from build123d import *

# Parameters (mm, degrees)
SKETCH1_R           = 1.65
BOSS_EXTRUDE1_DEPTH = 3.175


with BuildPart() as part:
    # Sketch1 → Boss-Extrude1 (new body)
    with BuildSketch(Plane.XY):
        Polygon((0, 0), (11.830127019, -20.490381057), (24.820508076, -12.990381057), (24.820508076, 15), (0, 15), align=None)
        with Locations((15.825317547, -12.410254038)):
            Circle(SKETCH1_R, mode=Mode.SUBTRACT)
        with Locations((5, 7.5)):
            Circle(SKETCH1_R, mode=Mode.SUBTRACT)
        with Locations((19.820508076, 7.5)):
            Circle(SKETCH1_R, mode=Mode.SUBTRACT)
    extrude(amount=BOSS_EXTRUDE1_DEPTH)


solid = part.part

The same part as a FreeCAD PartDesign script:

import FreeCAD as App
import Part
import Sketcher
from FreeCAD import Vector
Q = App.Units.Quantity


def add_polygon(sketch, points):
    """Adds a closed chain of lines whose ends are joined by coincident constraints."""
    first, n = sketch.GeometryCount, len(points)
    for a, b in zip(points, points[1:] + points[:1]):
        sketch.addGeometry(Part.LineSegment(App.Vector(*a, 0), App.Vector(*b, 0)), False)
    for i in range(n):
        sketch.addConstraint(Sketcher.Constraint("Coincident", first + i, 2, first + (i + 1) % n, 1))

doc = App.newDocument("Part")
body = doc.addObject("PartDesign::Body", "Body")

sketch1 = doc.addObject("Sketcher::SketchObject", "Sketch")
body.addObject(sketch1)
sketch1.AttachmentSupport = (doc.XY_Plane, [""])
sketch1.MapMode = "FlatFace"
add_polygon(sketch1, [(0, 0), (11.8, -20.5), (24.8, -13), (24.8, 15), (0, 15)])
sketch1.addGeometry(Part.Circle(Vector(15.8, -12.4, 0), Vector(0, 0, 1), 1.6), False)
sketch1.addGeometry(Part.Circle(Vector(5, 7.5, 0), Vector(0, 0, 1), 1.6), False)
sketch1.addGeometry(Part.Circle(Vector(19.8, 7.5, 0), Vector(0, 0, 1), 1.6), False)
sketch1.addConstraint([
    Sketcher.Constraint("Vertical", 2),
    Sketcher.Constraint("Horizontal", 3),
    Sketcher.Constraint("Vertical", 4),
    Sketcher.Constraint("Coincident", 4, 2, -1, 1),
    Sketcher.Constraint("Equal", 5, 6),
    Sketcher.Constraint("Equal", 6, 7),
    Sketcher.Constraint("Perpendicular", 0, 1),
    Sketcher.Constraint("Horizontal", 6, 3, 7, 3),
    Sketcher.Constraint("Diameter", 5, Q("3.3 mm")),
    Sketcher.Constraint("DistanceY", 4, 2, 4, 1, Q("15 mm")),
    Sketcher.Constraint("Angle", 0, Q("-60 deg")),
    Sketcher.Constraint("Distance", 1, Q("15 mm")),
    Sketcher.Constraint("DistanceX", -1, 1, 6, 3, Q("5 mm")),
    Sketcher.Constraint("DistanceX", 7, 3, 1, 2, Q("5 mm")),
    Sketcher.Constraint("DistanceY", -1, 1, 6, 3, Q("7.5 mm")),
    Sketcher.Constraint("DistanceX", 3, 2, 3, 1, Q("24.820508 mm")),
    Sketcher.Constraint("DistanceX", 5, 3, 7, 3, Q("3.995191 mm")),
    Sketcher.Constraint("DistanceY", 5, 3, -1, 1, Q("12.410254 mm")),
])
pad1 = doc.addObject("PartDesign::Pad", "Pad")
body.addObject(pad1)
pad1.Profile = sketch1
pad1.Length = 3.175

doc.recompute()
